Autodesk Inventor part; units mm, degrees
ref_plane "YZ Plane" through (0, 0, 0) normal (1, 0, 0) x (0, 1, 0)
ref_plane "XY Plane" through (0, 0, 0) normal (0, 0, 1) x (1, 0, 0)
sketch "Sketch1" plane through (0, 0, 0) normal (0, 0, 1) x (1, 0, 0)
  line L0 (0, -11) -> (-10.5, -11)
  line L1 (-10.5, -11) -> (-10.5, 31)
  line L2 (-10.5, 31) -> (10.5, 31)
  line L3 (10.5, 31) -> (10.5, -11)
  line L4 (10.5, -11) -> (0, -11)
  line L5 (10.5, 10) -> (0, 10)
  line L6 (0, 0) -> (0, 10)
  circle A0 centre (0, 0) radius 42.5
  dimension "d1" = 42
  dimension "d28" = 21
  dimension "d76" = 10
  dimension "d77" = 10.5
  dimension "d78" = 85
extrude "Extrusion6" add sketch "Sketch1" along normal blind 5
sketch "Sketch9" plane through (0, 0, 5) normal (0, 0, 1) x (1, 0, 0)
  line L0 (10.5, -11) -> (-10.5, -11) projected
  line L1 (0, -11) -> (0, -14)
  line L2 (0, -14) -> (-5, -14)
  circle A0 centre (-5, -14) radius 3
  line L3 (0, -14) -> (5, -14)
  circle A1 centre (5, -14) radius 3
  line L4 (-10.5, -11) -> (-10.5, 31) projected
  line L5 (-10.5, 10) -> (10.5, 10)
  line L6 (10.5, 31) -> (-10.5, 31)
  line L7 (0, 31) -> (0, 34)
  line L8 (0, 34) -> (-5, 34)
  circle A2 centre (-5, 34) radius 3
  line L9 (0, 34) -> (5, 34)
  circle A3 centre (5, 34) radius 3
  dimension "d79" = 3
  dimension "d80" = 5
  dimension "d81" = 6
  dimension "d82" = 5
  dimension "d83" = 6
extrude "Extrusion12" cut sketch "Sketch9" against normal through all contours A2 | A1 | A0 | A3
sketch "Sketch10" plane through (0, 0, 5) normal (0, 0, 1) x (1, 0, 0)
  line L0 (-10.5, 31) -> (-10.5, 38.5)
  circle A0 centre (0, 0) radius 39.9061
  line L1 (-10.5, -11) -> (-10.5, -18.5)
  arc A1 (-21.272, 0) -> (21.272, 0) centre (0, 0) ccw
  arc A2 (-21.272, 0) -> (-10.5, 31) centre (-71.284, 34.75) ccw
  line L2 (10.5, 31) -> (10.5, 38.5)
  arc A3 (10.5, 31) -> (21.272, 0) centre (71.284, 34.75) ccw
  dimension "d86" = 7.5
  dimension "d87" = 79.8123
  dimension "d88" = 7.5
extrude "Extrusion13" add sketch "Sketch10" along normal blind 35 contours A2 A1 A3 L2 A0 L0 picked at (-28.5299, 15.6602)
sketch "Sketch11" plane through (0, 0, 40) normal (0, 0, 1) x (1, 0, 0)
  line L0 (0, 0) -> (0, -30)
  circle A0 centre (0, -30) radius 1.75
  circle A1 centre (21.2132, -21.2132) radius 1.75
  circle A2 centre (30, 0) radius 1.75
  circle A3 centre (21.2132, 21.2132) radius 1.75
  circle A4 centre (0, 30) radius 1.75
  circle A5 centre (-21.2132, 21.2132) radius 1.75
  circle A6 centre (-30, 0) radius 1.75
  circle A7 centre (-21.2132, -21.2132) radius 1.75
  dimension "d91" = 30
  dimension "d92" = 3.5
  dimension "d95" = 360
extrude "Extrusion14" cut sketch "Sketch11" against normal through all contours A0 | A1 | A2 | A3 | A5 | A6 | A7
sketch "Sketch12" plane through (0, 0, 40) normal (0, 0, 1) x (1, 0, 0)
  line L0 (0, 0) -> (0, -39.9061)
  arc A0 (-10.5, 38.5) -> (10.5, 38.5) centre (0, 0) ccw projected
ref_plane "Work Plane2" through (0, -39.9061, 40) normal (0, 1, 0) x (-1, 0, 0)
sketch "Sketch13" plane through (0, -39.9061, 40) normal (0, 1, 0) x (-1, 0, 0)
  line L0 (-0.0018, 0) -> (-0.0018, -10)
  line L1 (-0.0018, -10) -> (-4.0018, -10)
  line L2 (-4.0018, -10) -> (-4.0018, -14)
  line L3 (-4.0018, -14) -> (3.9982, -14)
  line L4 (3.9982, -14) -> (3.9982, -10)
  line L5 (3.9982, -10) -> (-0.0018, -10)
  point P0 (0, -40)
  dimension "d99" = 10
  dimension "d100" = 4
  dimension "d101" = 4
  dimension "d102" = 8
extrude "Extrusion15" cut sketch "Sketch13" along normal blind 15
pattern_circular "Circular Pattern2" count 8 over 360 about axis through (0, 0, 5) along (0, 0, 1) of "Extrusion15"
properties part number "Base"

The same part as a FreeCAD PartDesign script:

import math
import FreeCAD as App
import Part
import Sketcher

V = App.Vector
Q = App.Units.Quantity


def add_polygon(sketch, points):
    """Adds a closed chain of lines whose ends are joined by coincident constraints."""
    first, n = sketch.GeometryCount, len(points)
    for a, b in zip(points, points[1:] + points[:1]):
        sketch.addGeometry(Part.LineSegment(App.Vector(*a, 0), App.Vector(*b, 0)), False)
    for i in range(n):
        sketch.addConstraint(Sketcher.Constraint("Coincident", first + i, 2, first + (i + 1) % n, 1))

doc = App.newDocument("Part")
body = doc.addObject("PartDesign::Body", "Body")

# Sketch on XY plane
sketch1 = doc.addObject("Sketcher::SketchObject", "Sketch")
body.addObject(sketch1)
sketch1.AttachmentSupport = (doc.XY_Plane, [""])
sketch1.MapMode = "FlatFace"
sketch1.addGeometry(Part.Circle(V(0, 0, 0), V(0, 0, 1), 42), False)  # 0
add_polygon(sketch1, [(10, -11), (-10, -11), (-10, 31), (10, 31)])  # lines 1-4
sketch1.addConstraint([
    Sketcher.Constraint("Horizontal", 1),
    Sketcher.Constraint("Vertical", 2),
    Sketcher.Constraint("Horizontal", 3),
    Sketcher.Constraint("Vertical", 4),
    Sketcher.Constraint("Coincident", 0, 3, -1, 1),
    Sketcher.Constraint("Diameter", 0, Q("85 mm")),
    Sketcher.Constraint("DistanceX", 1, 2, 1, 1, Q("21 mm")),
    Sketcher.Constraint("DistanceY", 2, 1, 2, 2, Q("42 mm")),
    Sketcher.Constraint("DistanceX", 1, 2, -1, 1, Q("10.5 mm")),
    Sketcher.Constraint("DistanceY", 1, 2, -1, 1, Q("11 mm")),
])
pad1 = doc.addObject("PartDesign::Pad", "Pad")
body.addObject(pad1)
pad1.Profile = sketch1
pad1.Length = 5

# Sketch on XY plane
sketch2 = doc.addObject("Sketcher::SketchObject", "Sketch001")
body.addObject(sketch2)
sketch2.AttachmentSupport = (doc.XY_Plane, [""])
sketch2.MapMode = "FlatFace"
sketch2.AttachmentOffset = App.Placement(V(0, 0, 5), App.Rotation())
sketch2.addGeometry([
    Part.Circle(V(-5, 34, 0), V(0, 0, 1), 3),
    Part.Circle(V(5, -14, 0), V(0, 0, 1), 3),
    Part.Circle(V(-5, -14, 0), V(0, 0, 1), 3),
    Part.Circle(V(5, 34, 0), V(0, 0, 1), 3),
], False)
sketch2.addConstraint([
    Sketcher.Constraint("Equal", 0, 1),
    Sketcher.Constraint("Equal", 1, 2),
    Sketcher.Constraint("Equal", 2, 3),
    Sketcher.Constraint("Symmetric", 1, 3, 2, 3, -2),
    Sketcher.Constraint("Symmetric", 0, 3, 3, 3, -2),
    Sketcher.Constraint("Vertical", 0, 3, 2, 3),
    Sketcher.Constraint("Diameter", 0, Q("6 mm")),
    Sketcher.Constraint("DistanceX", 0, 3, -1, 1, Q("5 mm")),
    Sketcher.Constraint("DistanceY", -1, 1, 0, 3, Q("34 mm")),
    Sketcher.Constraint("DistanceY", 1, 3, -1, 1, Q("14 mm")),
])
pocket1 = doc.addObject("PartDesign::Pocket", "Pocket")
body.addObject(pocket1)
pocket1.Profile = sketch2
pocket1.Type = "ThroughAll"

# Sketch on XY plane
sketch3 = doc.addObject("Sketcher::SketchObject", "Sketch002")
body.addObject(sketch3)
sketch3.AttachmentSupport = (doc.XY_Plane, [""])
sketch3.MapMode = "FlatFace"
sketch3.AttachmentOffset = App.Placement(V(0, 0, 5), App.Rotation())
sketch3.addGeometry([
    Part.ArcOfCircle(Part.Circle(V(-71, 35, 0), V(0, 0, 1), 61), math.radians(-35), math.radians(-4)),  # 0
    Part.LineSegment(V(-10, 31, 0), V(-10, 38, 0)),  # 1
    Part.ArcOfCircle(Part.Circle(V(0, 0, 0), V(0, 0, 1), 40), math.radians(105), math.radians(435)),  # 2
    Part.LineSegment(V(10, 38, 0), V(10, 31, 0)),  # 3
    Part.ArcOfCircle(Part.Circle(V(71, 35, 0), V(0, 0, 1), 61), math.radians(-176), math.radians(-145)),  # 4
    Part.ArcOfCircle(Part.Circle(V(0, 0, 0), V(0, 0, 1), 21), math.radians(180), math.radians(360)),  # 5
], False)
sketch3.addConstraint([
    Sketcher.Constraint("Coincident", 0, 2, 1, 1),
    Sketcher.Constraint("Coincident", 1, 2, 2, 1),
    Sketcher.Constraint("Coincident", 2, 2, 3, 1),
    Sketcher.Constraint("Coincident", 3, 2, 4, 1),
    Sketcher.Constraint("Coincident", 4, 2, 5, 2),
    Sketcher.Constraint("Coincident", 5, 1, 0, 1),
    Sketcher.Constraint("Vertical", 1),
    Sketcher.Constraint("Vertical", 3),
    Sketcher.Constraint("Coincident", 2, 3, -1, 1),
    Sketcher.Constraint("Coincident", 5, 3, -1, 1),
    Sketcher.Constraint("Equal", 0, 4),
    Sketcher.Constraint("Symmetric", 0, 3, 4, 3, -2),
    Sketcher.Constraint("PointOnObject", 4, 2, -1),
    Sketcher.Constraint("Horizontal", 1, 2, 2, 2),
    Sketcher.Constraint("DistanceY", 1, 1, 1, 2, Q("7.5 mm")),
    Sketcher.Constraint("Radius", 2, Q("39.906 mm")),
    Sketcher.Constraint("DistanceY", -1, 1, 3, 2, Q("31 mm")),
    Sketcher.Constraint("Radius", 5, Q("21.272 mm")),
    Sketcher.Constraint("Radius", 0, Q("60.8996 mm")),
])
pad2 = doc.addObject("PartDesign::Pad", "Pad001")
body.addObject(pad2)
pad2.Profile = sketch3
pad2.Length = 35

# Sketch on XY plane
sketch4 = doc.addObject("Sketcher::SketchObject", "Sketch003")
body.addObject(sketch4)
sketch4.AttachmentSupport = (doc.XY_Plane, [""])
sketch4.MapMode = "FlatFace"
sketch4.AttachmentOffset = App.Placement(V(0, 0, 40), App.Rotation())
sketch4.addGeometry([
    Part.Circle(V(0, -30, 0), V(0, 0, 1), 1.8),  # 0
    Part.Circle(V(21.2, -21.2, 0), V(0, 0, 1), 1.8),  # 1
    Part.Circle(V(30, 0, 0), V(0, 0, 1), 1.8),  # 2
    Part.Circle(V(21.2, 21.2, 0), V(0, 0, 1), 1.8),  # 3
    Part.Circle(V(-21.2, 21.2, 0), V(0, 0, 1), 1.8),  # 4
    Part.Circle(V(-30, 0, 0), V(0, 0, 1), 1.8),  # 5
    Part.Circle(V(-21.2, -21.2, 0), V(0, 0, 1), 1.8),  # 6
], False)
sketch4.addConstraint([
    Sketcher.Constraint("Equal", 0, 1),
    Sketcher.Constraint("Equal", 1, 2),
    Sketcher.Constraint("Equal", 2, 3),
    Sketcher.Constraint("Equal", 3, 4),
    Sketcher.Constraint("Equal", 4, 5),
    Sketcher.Constraint("Equal", 5, 6),
    Sketcher.Constraint("Symmetric", 1, 3, 4, 3, -1, 1),
    Sketcher.Constraint("Symmetric", 2, 3, 5, 3, -1, 1),
    Sketcher.Constraint("Symmetric", 3, 3, 6, 3, -1, 1),
    Sketcher.Constraint("Symmetric", 3, 3, 4, 3, -2),
    Sketcher.Constraint("PointOnObject", 0, 3, -2),
    Sketcher.Constraint("PointOnObject", 2, 3, -1),
    Sketcher.Constraint("Diameter", 0, Q("3.5 mm")),
    Sketcher.Constraint("DistanceY", 0, 3, -1, 1, Q("30 mm")),
    Sketcher.Constraint("DistanceX", -1, 1, 2, 3, Q("30 mm")),
    Sketcher.Constraint("DistanceX", -1, 1, 1, 3, Q("21.2132 mm")),
    Sketcher.Constraint("DistanceY", 1, 3, -1, 1, Q("21.2132 mm")),
])
pocket2 = doc.addObject("PartDesign::Pocket", "Pocket001")
body.addObject(pocket2)
pocket2.Profile = sketch4
pocket2.Type = "ThroughAll"

# Sketch on XZ plane
sketch5 = doc.addObject("Sketcher::SketchObject", "Sketch004")
body.addObject(sketch5)
sketch5.AttachmentSupport = (doc.XZ_Plane, [""])
sketch5.MapMode = "FlatFace"
sketch5.AttachmentOffset = App.Placement(V(0, 0, 39.9061), App.Rotation())
add_polygon(sketch5, [(-4, 30), (4, 30), (4, 26), (-4, 26)])  # lines 0-3
sketch5.addConstraint([
    Sketcher.Constraint("Horizontal", 0),
    Sketcher.Constraint("Vertical", 1),
    Sketcher.Constraint("Horizontal", 2),
    Sketcher.Constraint("Vertical", 3),
    Sketcher.Constraint("DistanceX", 0, 1, 0, 2, Q("8 mm")),
    Sketcher.Constraint("DistanceY", 1, 2, 1, 1, Q("4 mm")),
    Sketcher.Constraint("DistanceY", -1, 1, 0, 2, Q("30 mm")),
    Sketcher.Constraint("DistanceX", -1, 1, 0, 2, Q("4.0018 mm")),
])
pocket3 = doc.addObject("PartDesign::Pocket", "Pocket002")
body.addObject(pocket3)
pocket3.Profile = sketch5
pocket3.Length = 15
doc.recompute()

polarpattern = doc.addObject("PartDesign::PolarPattern", "PolarPattern")
body.addObject(polarpattern)
polarpattern.Originals = [pocket3]
polarpattern.Axis = (doc.Z_Axis, [""])
polarpattern.Angle = 360
polarpattern.Occurrences = 8
body.Tip = polarpattern

doc.recompute()
